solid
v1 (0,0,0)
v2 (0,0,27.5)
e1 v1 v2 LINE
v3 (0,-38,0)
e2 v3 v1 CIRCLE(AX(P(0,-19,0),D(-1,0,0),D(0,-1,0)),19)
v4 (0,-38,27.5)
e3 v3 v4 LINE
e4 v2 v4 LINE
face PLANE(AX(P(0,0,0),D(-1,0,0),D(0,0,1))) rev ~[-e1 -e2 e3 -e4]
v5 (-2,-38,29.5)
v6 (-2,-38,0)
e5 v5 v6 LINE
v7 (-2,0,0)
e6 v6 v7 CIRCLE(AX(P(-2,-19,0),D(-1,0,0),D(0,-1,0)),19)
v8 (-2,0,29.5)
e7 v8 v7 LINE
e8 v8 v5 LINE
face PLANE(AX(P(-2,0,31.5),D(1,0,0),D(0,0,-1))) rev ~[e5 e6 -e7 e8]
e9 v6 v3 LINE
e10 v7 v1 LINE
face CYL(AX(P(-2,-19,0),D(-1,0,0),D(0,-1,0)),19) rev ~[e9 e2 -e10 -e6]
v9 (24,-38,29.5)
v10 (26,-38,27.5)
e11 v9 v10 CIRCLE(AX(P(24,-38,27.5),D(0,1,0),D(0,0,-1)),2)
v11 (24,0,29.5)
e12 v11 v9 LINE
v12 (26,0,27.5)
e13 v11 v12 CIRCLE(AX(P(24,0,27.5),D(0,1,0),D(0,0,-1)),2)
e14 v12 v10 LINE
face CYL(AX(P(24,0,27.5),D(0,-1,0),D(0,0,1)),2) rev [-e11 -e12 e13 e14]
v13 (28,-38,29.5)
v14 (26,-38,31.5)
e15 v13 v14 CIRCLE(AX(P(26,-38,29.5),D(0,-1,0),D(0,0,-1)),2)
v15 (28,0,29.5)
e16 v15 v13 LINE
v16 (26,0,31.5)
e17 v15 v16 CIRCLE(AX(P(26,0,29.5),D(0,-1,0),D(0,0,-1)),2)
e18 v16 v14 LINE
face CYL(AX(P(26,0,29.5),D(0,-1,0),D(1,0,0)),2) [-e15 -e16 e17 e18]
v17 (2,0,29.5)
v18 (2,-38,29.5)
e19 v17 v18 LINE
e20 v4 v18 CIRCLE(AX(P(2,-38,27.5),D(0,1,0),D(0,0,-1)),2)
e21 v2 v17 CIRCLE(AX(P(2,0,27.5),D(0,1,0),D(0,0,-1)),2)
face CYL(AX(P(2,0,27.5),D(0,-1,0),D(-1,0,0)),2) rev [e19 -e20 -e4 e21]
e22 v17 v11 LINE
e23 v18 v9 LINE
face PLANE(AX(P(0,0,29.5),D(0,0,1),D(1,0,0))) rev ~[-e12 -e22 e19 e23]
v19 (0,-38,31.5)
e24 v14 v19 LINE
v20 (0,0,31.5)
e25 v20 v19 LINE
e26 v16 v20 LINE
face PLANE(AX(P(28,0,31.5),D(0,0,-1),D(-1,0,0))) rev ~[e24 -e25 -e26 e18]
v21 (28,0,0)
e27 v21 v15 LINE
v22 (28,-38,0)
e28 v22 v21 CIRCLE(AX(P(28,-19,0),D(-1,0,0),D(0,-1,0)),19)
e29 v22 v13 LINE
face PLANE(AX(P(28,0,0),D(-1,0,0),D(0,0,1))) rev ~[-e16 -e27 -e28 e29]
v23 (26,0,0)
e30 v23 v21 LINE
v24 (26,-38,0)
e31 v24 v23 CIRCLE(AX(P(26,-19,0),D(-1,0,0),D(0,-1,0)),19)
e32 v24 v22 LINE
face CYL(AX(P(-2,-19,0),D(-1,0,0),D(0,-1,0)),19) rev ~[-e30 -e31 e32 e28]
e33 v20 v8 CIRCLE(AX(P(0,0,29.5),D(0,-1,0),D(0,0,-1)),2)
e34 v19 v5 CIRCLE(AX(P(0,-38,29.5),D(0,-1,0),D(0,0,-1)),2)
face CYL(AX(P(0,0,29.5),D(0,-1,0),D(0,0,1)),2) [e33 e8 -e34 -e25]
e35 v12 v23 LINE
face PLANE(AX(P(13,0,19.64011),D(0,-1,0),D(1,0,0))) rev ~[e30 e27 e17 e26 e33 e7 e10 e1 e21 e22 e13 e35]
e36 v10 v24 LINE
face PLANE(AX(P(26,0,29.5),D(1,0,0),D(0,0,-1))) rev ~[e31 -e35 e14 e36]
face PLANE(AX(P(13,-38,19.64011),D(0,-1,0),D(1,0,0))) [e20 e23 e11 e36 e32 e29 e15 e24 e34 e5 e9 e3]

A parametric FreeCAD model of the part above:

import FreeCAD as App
import Part
import Sketcher
Q = App.Units.Quantity


def edges_at(feature, points):
    """Names of the edges that pass closest to the given points."""
    edges = feature.Shape.Edges
    near = lambda p: min(range(len(edges)), key=lambda i: edges[i].distToShape(Part.Vertex(*p))[0])
    return sorted({f"Edge{near(p) + 1}" for p in points})

doc = App.newDocument("Part")
body = doc.addObject("PartDesign::Body", "Body")

sketch1 = doc.addObject("Sketcher::SketchObject", "Sketch")
body.addObject(sketch1)
sketch1.AttachmentSupport = (doc.XZ_Plane, [""])
sketch1.MapMode = "FlatFace"
sketch1.addGeometry(Part.LineSegment(App.Vector(-2, 0, 0), App.Vector(0, 0, 0)), False)
sketch1.addGeometry(Part.LineSegment(App.Vector(0, 0, 0), App.Vector(0, 29.5, 0)), False)
sketch1.addGeometry(Part.LineSegment(App.Vector(0, 29.5, 0), App.Vector(26, 29.5, 0)), False)
sketch1.addGeometry(Part.LineSegment(App.Vector(26, 29.5, 0), App.Vector(26, 0, 0)), False)
sketch1.addGeometry(Part.LineSegment(App.Vector(26, 0, 0), App.Vector(28, 0, 0)), False)
sketch1.addGeometry(Part.LineSegment(App.Vector(28, 0, 0), App.Vector(28, 31.5, 0)), False)
sketch1.addGeometry(Part.LineSegment(App.Vector(28, 31.5, 0), App.Vector(-2, 31.5, 0)), False)
sketch1.addGeometry(Part.LineSegment(App.Vector(-2, 31.5, 0), App.Vector(-2, 0, 0)), False)
sketch1.addConstraint(Sketcher.Constraint("Coincident", 0, 2, 1, 1))
sketch1.addConstraint(Sketcher.Constraint("Coincident", 1, 2, 2, 1))
sketch1.addConstraint(Sketcher.Constraint("Coincident", 2, 2, 3, 1))
sketch1.addConstraint(Sketcher.Constraint("Coincident", 3, 2, 4, 1))
sketch1.addConstraint(Sketcher.Constraint("Coincident", 4, 2, 5, 1))
sketch1.addConstraint(Sketcher.Constraint("Coincident", 5, 2, 6, 1))
sketch1.addConstraint(Sketcher.Constraint("Coincident", 6, 2, 7, 1))
sketch1.addConstraint(Sketcher.Constraint("Coincident", 7, 2, 0, 1))
sketch1.addConstraint(Sketcher.Constraint("Horizontal", 0))
sketch1.addConstraint(Sketcher.Constraint("Vertical", 1))
sketch1.addConstraint(Sketcher.Constraint("Horizontal", 2))
sketch1.addConstraint(Sketcher.Constraint("Vertical", 3))
sketch1.addConstraint(Sketcher.Constraint("Horizontal", 4))
sketch1.addConstraint(Sketcher.Constraint("Vertical", 5))
sketch1.addConstraint(Sketcher.Constraint("Horizontal", 6))
sketch1.addConstraint(Sketcher.Constraint("Vertical", 7))
sketch1.addConstraint(Sketcher.Constraint("Coincident", 0, 2, -1, 1))
sketch1.addConstraint(Sketcher.Constraint("PointOnObject", 3, 2, -1))
sketch1.addConstraint(Sketcher.Constraint("Equal", 0, 4))
sketch1.addConstraint(Sketcher.Constraint("DistanceX", 0, 1, 0, 2, Q("2 mm")))
sketch1.addConstraint(Sketcher.Constraint("DistanceX", 2, 1, 2, 2, Q("26 mm")))
sketch1.addConstraint(Sketcher.Constraint("DistanceY", 1, 1, 1, 2, Q("29.5 mm")))
sketch1.addConstraint(Sketcher.Constraint("DistanceY", 5, 1, 5, 2, Q("31.5 mm")))
pad1 = doc.addObject("PartDesign::Pad", "Pad")
body.addObject(pad1)
pad1.Profile = sketch1
pad1.Length = 38

sketch2 = doc.addObject("Sketcher::SketchObject", "Sketch001")
body.addObject(sketch2)
sketch2.AttachmentSupport = (doc.YZ_Plane, [""])
sketch2.MapMode = "FlatFace"
sketch2.AttachmentOffset = App.Placement(App.Vector(0, 0, -2), App.Rotation())
sketch2.addGeometry(Part.Circle(App.Vector(-19, 0, 0), App.Vector(0, 0, 1), 19), False)
sketch2.addConstraint(Sketcher.Constraint("PointOnObject", 0, 3, -1))
sketch2.addConstraint(Sketcher.Constraint("Diameter", 0, Q("38 mm")))
sketch2.addConstraint(Sketcher.Constraint("DistanceX", 0, 3, -1, 1, Q("19 mm")))
pocket1 = doc.addObject("PartDesign::Pocket", "Pocket")
body.addObject(pocket1)
pocket1.Profile = sketch2
pocket1.Type = "ThroughAll"
pocket1.Reversed = True
doc.recompute()

fillet = doc.addObject("PartDesign::Fillet", "Fillet")
body.addObject(fillet)
fillet.Base = (pocket1, edges_at(pocket1, [
    (26, -19, 29.5),
    (0, -19, 29.5),
    (28, -19, 31.5),
    (-2, -19, 31.5),
]))
fillet.Radius = 2

doc.recompute()
